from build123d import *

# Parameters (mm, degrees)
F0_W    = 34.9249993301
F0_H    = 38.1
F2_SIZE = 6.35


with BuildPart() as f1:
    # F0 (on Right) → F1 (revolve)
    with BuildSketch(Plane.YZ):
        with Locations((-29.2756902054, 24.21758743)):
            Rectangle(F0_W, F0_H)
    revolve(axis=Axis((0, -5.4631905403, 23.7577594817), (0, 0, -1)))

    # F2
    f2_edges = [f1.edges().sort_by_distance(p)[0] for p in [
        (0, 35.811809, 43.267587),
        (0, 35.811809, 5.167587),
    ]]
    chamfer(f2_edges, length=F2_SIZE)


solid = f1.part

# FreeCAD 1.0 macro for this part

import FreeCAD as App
import Part
import Sketcher
from FreeCAD import Vector
Q = App.Units.Quantity


def edges_at(feature, points):
    """Names of the edges that pass closest to the given points."""
    edges = feature.Shape.Edges
    near = lambda p: min(range(len(edges)), key=lambda i: edges[i].distToShape(Part.Vertex(*p))[0])
    return sorted({f"Edge{near(p) + 1}" for p in points})


def add_polygon(sketch, points):
    """Adds a closed chain of lines whose ends are joined by coincident constraints."""
    first, n = sketch.GeometryCount, len(points)
    for a, b in zip(points, points[1:] + points[:1]):
        sketch.addGeometry(Part.LineSegment(App.Vector(*a, 0), App.Vector(*b, 0)), False)
    for i in range(n):
        sketch.addConstraint(Sketcher.Constraint("Coincident", first + i, 2, first + (i + 1) % n, 1))

doc = App.newDocument("Part")
params = doc.addObject("Spreadsheet::Sheet", "Params")
for row, (alias, value) in enumerate([
    ("sketch1_height", "1.5 in"),
    ("sketch1_width", "1.375 in"),
    ("revolution_angle", "360 deg"),
    ("chamfer_size", "0.25 in"),
], start=1):
    params.set(f"A{row}", alias)
    params.set(f"B{row}", "=" + value)
    params.setAlias(f"B{row}", alias)

body = doc.addObject("PartDesign::Body", "Body")

sketch1 = doc.addObject("Sketcher::SketchObject", "Sketch")
body.addObject(sketch1)
sketch1.AttachmentSupport = (doc.YZ_Plane, [""])
sketch1.MapMode = "FlatFace"
add_polygon(sketch1, [(-47, 43), (-47, 5), (-12, 5), (-12, 43)])
sketch1.addGeometry(Part.LineSegment(Vector(-5, 43, 0), Vector(-5, 5, 0)), True)
sketch1.addConstraint(Sketcher.Constraint("Vertical", 0))
sketch1.addConstraint(Sketcher.Constraint("Horizontal", 1))
sketch1.addConstraint(Sketcher.Constraint("Vertical", 2))
sketch1.addConstraint(Sketcher.Constraint("Horizontal", 3))
sketch1.addConstraint(Sketcher.Constraint("Vertical", 4))
sketch1.addConstraint(Sketcher.Constraint("Horizontal", 3, 2, 4, 1))
sketch1.addConstraint(Sketcher.Constraint("Horizontal", 1, 2, 4, 2))
sketch1.addConstraint(Sketcher.Constraint("DistanceY", 0, 2, 0, 1, Q("1.5 in")))
sketch1.addConstraint(Sketcher.Constraint("DistanceX", 1, 1, 1, 2, Q("1.375 in")))
sketch1.addConstraint(Sketcher.Constraint("DistanceX", 2, 2, 4, 1, Q("0.25 in")))
sketch1.addConstraint(Sketcher.Constraint("DistanceX", 0, 2, -1, 1, Q("46.73819 mm")))
sketch1.addConstraint(Sketcher.Constraint("DistanceY", -1, 1, 0, 2, Q("5.167587 mm")))
sketch1.setExpression("Constraints[11]", "Params.sketch1_height")
sketch1.setExpression("Constraints[12]", "Params.sketch1_width")
revolution = doc.addObject("PartDesign::Revolution", "Revolution")
body.addObject(revolution)
revolution.Profile = sketch1
revolution.ReferenceAxis = (sketch1, ["Axis0"])
revolution.setExpression("Angle", "Params.revolution_angle")
doc.recompute()

chamfer = doc.addObject("PartDesign::Chamfer", "Chamfer")
body.addObject(chamfer)
chamfer.Base = (revolution, edges_at(revolution, [(0, 35.812, 43.268), (0, 35.812, 5.168)]))
chamfer.setExpression("Size", "Params.chamfer_size")

doc.recompute()
